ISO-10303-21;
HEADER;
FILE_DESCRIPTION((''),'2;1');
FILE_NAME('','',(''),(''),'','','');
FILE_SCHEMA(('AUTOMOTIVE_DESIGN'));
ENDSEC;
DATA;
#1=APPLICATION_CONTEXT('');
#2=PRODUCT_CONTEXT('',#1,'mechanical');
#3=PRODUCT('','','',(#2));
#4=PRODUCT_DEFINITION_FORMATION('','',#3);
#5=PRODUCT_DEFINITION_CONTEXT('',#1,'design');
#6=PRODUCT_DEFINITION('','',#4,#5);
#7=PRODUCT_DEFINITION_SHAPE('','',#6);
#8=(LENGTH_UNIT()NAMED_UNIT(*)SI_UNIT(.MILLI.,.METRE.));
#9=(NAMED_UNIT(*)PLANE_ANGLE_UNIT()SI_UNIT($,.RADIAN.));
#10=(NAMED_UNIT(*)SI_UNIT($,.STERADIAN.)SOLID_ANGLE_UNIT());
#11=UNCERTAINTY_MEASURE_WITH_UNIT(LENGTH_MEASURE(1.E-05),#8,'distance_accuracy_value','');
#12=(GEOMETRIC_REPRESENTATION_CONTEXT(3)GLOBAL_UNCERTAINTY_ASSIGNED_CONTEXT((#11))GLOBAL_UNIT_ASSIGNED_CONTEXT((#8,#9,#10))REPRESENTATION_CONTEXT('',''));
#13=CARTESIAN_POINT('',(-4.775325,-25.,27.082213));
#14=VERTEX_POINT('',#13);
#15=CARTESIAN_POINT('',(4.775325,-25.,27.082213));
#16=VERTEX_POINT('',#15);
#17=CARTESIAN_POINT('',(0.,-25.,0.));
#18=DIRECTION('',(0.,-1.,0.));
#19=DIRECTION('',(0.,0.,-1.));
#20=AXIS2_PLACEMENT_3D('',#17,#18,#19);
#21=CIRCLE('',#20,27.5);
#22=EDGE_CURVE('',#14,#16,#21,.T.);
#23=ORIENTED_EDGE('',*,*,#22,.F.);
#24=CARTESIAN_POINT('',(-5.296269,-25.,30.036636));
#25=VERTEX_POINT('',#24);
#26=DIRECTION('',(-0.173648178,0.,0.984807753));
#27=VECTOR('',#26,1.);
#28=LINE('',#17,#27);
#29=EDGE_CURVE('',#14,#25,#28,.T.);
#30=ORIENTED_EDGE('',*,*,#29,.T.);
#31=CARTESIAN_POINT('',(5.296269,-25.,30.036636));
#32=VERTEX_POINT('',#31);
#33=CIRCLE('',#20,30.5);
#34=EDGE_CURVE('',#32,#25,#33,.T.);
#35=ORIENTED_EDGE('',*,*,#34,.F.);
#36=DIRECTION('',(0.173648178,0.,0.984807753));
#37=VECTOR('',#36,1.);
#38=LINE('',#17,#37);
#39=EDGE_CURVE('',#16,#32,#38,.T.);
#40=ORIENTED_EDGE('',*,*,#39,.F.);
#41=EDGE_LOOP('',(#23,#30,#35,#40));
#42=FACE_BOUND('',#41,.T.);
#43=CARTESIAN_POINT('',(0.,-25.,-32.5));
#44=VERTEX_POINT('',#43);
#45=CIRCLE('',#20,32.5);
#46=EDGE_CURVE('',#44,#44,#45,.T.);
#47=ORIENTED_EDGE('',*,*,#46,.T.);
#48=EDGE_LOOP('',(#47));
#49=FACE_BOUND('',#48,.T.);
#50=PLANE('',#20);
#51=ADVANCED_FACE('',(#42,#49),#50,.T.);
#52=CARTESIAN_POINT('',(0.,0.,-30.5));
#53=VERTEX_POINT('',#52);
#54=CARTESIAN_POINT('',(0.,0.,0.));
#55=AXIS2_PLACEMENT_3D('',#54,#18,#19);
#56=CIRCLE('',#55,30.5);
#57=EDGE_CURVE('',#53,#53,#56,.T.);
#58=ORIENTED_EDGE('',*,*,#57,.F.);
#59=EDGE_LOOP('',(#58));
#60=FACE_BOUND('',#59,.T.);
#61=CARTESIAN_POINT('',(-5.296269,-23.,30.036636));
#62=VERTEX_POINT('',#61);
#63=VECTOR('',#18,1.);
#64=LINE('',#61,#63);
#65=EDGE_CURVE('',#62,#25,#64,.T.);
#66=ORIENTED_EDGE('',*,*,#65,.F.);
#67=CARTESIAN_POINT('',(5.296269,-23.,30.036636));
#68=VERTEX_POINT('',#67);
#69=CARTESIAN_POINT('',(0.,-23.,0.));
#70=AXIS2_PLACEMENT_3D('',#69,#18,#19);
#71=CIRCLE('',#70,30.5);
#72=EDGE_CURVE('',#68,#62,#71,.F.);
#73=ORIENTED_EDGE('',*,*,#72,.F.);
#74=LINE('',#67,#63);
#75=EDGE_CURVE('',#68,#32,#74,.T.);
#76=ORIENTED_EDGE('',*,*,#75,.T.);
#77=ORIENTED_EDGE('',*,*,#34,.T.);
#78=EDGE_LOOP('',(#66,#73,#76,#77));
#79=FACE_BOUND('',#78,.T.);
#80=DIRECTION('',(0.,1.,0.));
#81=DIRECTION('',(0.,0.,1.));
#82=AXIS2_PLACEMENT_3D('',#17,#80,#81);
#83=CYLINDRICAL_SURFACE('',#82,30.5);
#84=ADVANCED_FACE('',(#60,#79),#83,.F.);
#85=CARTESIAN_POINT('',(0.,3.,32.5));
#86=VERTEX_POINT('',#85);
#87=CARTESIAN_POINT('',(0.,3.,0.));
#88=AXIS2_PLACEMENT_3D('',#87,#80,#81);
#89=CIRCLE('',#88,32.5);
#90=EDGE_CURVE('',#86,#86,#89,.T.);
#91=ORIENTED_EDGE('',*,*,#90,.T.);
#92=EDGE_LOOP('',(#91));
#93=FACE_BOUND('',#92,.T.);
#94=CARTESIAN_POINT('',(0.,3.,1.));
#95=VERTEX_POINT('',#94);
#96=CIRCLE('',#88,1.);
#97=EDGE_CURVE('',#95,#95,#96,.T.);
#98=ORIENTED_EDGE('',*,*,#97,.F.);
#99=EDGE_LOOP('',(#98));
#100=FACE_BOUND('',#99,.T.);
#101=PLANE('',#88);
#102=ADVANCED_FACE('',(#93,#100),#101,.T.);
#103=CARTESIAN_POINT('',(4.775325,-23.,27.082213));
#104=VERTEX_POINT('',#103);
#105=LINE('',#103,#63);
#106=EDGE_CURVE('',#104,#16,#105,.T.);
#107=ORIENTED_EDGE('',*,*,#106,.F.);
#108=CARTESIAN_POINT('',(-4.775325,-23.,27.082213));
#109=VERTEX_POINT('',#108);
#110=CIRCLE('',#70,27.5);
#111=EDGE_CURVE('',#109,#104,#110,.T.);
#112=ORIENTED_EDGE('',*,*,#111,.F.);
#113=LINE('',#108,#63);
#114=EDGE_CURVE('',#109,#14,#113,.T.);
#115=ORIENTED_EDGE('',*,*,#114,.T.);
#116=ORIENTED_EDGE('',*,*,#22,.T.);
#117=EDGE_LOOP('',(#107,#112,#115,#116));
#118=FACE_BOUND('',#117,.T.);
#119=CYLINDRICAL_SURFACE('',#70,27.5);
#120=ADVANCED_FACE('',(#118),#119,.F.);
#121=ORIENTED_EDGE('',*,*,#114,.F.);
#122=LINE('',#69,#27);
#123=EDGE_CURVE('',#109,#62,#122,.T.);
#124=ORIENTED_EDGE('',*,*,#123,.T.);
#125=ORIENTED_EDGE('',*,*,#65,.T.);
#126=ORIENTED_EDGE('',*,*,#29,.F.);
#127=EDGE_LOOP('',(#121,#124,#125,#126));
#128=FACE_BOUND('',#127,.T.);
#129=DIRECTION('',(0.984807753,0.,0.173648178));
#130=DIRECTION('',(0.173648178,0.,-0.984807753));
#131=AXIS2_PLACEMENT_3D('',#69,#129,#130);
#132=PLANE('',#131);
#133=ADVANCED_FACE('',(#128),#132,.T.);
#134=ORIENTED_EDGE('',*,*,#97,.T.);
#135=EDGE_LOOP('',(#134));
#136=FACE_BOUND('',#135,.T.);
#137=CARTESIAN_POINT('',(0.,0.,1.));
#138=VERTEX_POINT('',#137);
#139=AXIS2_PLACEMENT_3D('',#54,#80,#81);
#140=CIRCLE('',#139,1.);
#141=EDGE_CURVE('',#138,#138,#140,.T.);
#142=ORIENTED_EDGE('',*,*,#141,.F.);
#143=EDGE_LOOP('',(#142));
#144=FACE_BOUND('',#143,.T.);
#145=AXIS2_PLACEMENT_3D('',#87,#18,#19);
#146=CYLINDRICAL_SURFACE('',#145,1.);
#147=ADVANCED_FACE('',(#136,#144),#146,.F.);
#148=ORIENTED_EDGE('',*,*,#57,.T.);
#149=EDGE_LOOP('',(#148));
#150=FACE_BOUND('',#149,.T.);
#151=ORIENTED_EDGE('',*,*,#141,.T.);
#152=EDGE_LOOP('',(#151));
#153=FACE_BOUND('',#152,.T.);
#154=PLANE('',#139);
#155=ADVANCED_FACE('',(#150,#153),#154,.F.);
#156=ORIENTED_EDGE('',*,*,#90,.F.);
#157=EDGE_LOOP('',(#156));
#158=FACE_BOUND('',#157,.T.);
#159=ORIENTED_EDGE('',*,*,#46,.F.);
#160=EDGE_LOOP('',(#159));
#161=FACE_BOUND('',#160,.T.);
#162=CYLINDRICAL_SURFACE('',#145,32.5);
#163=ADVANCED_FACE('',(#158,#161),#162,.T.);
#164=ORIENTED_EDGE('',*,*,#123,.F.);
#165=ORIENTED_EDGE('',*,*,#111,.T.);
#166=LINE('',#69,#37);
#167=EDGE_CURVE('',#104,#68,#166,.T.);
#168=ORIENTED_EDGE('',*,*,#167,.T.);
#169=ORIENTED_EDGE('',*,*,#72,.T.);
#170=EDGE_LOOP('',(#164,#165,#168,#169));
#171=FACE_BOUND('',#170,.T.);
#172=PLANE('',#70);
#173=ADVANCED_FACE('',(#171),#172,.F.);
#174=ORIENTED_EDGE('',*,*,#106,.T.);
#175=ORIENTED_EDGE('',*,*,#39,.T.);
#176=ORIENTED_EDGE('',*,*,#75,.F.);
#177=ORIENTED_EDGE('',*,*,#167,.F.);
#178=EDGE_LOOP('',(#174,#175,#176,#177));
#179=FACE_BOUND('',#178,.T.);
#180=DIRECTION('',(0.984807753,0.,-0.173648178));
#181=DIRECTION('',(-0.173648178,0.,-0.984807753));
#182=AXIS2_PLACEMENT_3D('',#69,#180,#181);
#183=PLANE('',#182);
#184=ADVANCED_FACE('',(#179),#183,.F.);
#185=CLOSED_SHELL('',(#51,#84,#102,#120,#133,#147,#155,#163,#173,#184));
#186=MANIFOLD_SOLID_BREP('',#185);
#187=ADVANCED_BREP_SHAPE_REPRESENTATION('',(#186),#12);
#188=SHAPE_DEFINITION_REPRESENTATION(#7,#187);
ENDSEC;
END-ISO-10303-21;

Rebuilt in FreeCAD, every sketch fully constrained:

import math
import FreeCAD as App
import Part
import Sketcher

V = App.Vector
Q = App.Units.Quantity

doc = App.newDocument("Part")
body = doc.addObject("PartDesign::Body", "Body")

# Sketch on XZ plane
sketch1 = doc.addObject("Sketcher::SketchObject", "Sketch")
body.addObject(sketch1)
sketch1.AttachmentSupport = (doc.XZ_Plane, [""])
sketch1.MapMode = "FlatFace"
sketch1.addGeometry([
    Part.Circle(V(0, 0, 0), V(0, 0, 1), 32.5),
    Part.Circle(V(0, 0, 0), V(0, 0, 1), 1),
], False)
sketch1.addConstraint([
    Sketcher.Constraint("Coincident", 0, 3, -1, 1),
    Sketcher.Constraint("Coincident", 1, 3, -1, 1),
    Sketcher.Constraint("Diameter", 0, 65.0),
    Sketcher.Constraint("Diameter", 1, 2.0),
])
pad1 = doc.addObject("PartDesign::Pad", "Pad")
body.addObject(pad1)
pad1.Profile = sketch1
pad1.Length = 3
pad1.Reversed = True

# Sketch on XZ plane
sketch2 = doc.addObject("Sketcher::SketchObject", "Sketch001")
body.addObject(sketch2)
sketch2.AttachmentSupport = (doc.XZ_Plane, [""])
sketch2.MapMode = "FlatFace"
sketch2.AttachmentOffset = App.Placement(V(0, 0, 25), App.Rotation())
sketch2.addGeometry([
    Part.Circle(V(0, 0, 0), V(0, 0, 1), 32.5),
    Part.Circle(V(0, 0, 0), V(0, 0, 1), 30.5),
], False)
sketch2.addConstraint([
    Sketcher.Constraint("Coincident", 0, 3, -1, 1),
    Sketcher.Constraint("Coincident", 1, 3, -1, 1),
    Sketcher.Constraint("Diameter", 0, 65.0),
    Sketcher.Constraint("Diameter", 1, 61.0),
])
pad2 = doc.addObject("PartDesign::Pad", "Pad001")
body.addObject(pad2)
pad2.Profile = sketch2
pad2.Length = 25
pad2.Reversed = True

# Sketch on XZ plane
sketch3 = doc.addObject("Sketcher::SketchObject", "Sketch002")
body.addObject(sketch3)
sketch3.AttachmentSupport = (doc.XZ_Plane, [""])
sketch3.MapMode = "FlatFace"
sketch3.AttachmentOffset = App.Placement(V(0, 0, 25), App.Rotation())
sketch3.addGeometry([
    Part.ArcOfCircle(Part.Circle(V(0, 0, 0), V(0, 0, 1), 27.5), math.radians(100), math.radians(440)),  # 0
    Part.LineSegment(V(-4.775325, 27.082213, 0), V(-5.296269, 30.036636, 0)),  # 1
    Part.ArcOfCircle(Part.Circle(V(0, 0, 0), V(0, 0, 1), 30.5), math.radians(100), math.radians(360)),  # 2
    Part.ArcOfCircle(Part.Circle(V(0, 0, 0), V(0, 0, 1), 30.5), math.radians(0), math.radians(80)),  # 3
    Part.LineSegment(V(5.296269, 30.036636, 0), V(4.775325, 27.082213, 0)),  # 4
], False)
sketch3.addConstraint([
    Sketcher.Constraint("Coincident", 0, 1, 1, 1),
    Sketcher.Constraint("Coincident", 1, 2, 2, 1),
    Sketcher.Constraint("Tangent", 2, 2, 3, 1),
    Sketcher.Constraint("Coincident", 3, 2, 4, 1),
    Sketcher.Constraint("Coincident", 4, 2, 0, 2),
    Sketcher.Constraint("Coincident", 0, 3, -1, 1),
    Sketcher.Constraint("Coincident", 2, 3, -1, 1),
    Sketcher.Constraint("Equal", 2, 3),
    Sketcher.Constraint("PointOnObject", 2, 2, -1),
    Sketcher.Constraint("Horizontal", 1, 2, 3, 2),
    Sketcher.Constraint("Horizontal", 0, 1, 4, 2),
    Sketcher.Constraint("Radius", 0, 27.5),
    Sketcher.Constraint("Radius", 2, 30.5),
    Sketcher.Constraint("Angle", 1, Q("100 deg")),
    Sketcher.Constraint("DistanceX", 1, 2, -1, 1, 5.296269),
])
pad3 = doc.addObject("PartDesign::Pad", "Pad002")
body.addObject(pad3)
pad3.Profile = sketch3
pad3.Length = 2
pad3.Reversed = True

doc.recompute()
